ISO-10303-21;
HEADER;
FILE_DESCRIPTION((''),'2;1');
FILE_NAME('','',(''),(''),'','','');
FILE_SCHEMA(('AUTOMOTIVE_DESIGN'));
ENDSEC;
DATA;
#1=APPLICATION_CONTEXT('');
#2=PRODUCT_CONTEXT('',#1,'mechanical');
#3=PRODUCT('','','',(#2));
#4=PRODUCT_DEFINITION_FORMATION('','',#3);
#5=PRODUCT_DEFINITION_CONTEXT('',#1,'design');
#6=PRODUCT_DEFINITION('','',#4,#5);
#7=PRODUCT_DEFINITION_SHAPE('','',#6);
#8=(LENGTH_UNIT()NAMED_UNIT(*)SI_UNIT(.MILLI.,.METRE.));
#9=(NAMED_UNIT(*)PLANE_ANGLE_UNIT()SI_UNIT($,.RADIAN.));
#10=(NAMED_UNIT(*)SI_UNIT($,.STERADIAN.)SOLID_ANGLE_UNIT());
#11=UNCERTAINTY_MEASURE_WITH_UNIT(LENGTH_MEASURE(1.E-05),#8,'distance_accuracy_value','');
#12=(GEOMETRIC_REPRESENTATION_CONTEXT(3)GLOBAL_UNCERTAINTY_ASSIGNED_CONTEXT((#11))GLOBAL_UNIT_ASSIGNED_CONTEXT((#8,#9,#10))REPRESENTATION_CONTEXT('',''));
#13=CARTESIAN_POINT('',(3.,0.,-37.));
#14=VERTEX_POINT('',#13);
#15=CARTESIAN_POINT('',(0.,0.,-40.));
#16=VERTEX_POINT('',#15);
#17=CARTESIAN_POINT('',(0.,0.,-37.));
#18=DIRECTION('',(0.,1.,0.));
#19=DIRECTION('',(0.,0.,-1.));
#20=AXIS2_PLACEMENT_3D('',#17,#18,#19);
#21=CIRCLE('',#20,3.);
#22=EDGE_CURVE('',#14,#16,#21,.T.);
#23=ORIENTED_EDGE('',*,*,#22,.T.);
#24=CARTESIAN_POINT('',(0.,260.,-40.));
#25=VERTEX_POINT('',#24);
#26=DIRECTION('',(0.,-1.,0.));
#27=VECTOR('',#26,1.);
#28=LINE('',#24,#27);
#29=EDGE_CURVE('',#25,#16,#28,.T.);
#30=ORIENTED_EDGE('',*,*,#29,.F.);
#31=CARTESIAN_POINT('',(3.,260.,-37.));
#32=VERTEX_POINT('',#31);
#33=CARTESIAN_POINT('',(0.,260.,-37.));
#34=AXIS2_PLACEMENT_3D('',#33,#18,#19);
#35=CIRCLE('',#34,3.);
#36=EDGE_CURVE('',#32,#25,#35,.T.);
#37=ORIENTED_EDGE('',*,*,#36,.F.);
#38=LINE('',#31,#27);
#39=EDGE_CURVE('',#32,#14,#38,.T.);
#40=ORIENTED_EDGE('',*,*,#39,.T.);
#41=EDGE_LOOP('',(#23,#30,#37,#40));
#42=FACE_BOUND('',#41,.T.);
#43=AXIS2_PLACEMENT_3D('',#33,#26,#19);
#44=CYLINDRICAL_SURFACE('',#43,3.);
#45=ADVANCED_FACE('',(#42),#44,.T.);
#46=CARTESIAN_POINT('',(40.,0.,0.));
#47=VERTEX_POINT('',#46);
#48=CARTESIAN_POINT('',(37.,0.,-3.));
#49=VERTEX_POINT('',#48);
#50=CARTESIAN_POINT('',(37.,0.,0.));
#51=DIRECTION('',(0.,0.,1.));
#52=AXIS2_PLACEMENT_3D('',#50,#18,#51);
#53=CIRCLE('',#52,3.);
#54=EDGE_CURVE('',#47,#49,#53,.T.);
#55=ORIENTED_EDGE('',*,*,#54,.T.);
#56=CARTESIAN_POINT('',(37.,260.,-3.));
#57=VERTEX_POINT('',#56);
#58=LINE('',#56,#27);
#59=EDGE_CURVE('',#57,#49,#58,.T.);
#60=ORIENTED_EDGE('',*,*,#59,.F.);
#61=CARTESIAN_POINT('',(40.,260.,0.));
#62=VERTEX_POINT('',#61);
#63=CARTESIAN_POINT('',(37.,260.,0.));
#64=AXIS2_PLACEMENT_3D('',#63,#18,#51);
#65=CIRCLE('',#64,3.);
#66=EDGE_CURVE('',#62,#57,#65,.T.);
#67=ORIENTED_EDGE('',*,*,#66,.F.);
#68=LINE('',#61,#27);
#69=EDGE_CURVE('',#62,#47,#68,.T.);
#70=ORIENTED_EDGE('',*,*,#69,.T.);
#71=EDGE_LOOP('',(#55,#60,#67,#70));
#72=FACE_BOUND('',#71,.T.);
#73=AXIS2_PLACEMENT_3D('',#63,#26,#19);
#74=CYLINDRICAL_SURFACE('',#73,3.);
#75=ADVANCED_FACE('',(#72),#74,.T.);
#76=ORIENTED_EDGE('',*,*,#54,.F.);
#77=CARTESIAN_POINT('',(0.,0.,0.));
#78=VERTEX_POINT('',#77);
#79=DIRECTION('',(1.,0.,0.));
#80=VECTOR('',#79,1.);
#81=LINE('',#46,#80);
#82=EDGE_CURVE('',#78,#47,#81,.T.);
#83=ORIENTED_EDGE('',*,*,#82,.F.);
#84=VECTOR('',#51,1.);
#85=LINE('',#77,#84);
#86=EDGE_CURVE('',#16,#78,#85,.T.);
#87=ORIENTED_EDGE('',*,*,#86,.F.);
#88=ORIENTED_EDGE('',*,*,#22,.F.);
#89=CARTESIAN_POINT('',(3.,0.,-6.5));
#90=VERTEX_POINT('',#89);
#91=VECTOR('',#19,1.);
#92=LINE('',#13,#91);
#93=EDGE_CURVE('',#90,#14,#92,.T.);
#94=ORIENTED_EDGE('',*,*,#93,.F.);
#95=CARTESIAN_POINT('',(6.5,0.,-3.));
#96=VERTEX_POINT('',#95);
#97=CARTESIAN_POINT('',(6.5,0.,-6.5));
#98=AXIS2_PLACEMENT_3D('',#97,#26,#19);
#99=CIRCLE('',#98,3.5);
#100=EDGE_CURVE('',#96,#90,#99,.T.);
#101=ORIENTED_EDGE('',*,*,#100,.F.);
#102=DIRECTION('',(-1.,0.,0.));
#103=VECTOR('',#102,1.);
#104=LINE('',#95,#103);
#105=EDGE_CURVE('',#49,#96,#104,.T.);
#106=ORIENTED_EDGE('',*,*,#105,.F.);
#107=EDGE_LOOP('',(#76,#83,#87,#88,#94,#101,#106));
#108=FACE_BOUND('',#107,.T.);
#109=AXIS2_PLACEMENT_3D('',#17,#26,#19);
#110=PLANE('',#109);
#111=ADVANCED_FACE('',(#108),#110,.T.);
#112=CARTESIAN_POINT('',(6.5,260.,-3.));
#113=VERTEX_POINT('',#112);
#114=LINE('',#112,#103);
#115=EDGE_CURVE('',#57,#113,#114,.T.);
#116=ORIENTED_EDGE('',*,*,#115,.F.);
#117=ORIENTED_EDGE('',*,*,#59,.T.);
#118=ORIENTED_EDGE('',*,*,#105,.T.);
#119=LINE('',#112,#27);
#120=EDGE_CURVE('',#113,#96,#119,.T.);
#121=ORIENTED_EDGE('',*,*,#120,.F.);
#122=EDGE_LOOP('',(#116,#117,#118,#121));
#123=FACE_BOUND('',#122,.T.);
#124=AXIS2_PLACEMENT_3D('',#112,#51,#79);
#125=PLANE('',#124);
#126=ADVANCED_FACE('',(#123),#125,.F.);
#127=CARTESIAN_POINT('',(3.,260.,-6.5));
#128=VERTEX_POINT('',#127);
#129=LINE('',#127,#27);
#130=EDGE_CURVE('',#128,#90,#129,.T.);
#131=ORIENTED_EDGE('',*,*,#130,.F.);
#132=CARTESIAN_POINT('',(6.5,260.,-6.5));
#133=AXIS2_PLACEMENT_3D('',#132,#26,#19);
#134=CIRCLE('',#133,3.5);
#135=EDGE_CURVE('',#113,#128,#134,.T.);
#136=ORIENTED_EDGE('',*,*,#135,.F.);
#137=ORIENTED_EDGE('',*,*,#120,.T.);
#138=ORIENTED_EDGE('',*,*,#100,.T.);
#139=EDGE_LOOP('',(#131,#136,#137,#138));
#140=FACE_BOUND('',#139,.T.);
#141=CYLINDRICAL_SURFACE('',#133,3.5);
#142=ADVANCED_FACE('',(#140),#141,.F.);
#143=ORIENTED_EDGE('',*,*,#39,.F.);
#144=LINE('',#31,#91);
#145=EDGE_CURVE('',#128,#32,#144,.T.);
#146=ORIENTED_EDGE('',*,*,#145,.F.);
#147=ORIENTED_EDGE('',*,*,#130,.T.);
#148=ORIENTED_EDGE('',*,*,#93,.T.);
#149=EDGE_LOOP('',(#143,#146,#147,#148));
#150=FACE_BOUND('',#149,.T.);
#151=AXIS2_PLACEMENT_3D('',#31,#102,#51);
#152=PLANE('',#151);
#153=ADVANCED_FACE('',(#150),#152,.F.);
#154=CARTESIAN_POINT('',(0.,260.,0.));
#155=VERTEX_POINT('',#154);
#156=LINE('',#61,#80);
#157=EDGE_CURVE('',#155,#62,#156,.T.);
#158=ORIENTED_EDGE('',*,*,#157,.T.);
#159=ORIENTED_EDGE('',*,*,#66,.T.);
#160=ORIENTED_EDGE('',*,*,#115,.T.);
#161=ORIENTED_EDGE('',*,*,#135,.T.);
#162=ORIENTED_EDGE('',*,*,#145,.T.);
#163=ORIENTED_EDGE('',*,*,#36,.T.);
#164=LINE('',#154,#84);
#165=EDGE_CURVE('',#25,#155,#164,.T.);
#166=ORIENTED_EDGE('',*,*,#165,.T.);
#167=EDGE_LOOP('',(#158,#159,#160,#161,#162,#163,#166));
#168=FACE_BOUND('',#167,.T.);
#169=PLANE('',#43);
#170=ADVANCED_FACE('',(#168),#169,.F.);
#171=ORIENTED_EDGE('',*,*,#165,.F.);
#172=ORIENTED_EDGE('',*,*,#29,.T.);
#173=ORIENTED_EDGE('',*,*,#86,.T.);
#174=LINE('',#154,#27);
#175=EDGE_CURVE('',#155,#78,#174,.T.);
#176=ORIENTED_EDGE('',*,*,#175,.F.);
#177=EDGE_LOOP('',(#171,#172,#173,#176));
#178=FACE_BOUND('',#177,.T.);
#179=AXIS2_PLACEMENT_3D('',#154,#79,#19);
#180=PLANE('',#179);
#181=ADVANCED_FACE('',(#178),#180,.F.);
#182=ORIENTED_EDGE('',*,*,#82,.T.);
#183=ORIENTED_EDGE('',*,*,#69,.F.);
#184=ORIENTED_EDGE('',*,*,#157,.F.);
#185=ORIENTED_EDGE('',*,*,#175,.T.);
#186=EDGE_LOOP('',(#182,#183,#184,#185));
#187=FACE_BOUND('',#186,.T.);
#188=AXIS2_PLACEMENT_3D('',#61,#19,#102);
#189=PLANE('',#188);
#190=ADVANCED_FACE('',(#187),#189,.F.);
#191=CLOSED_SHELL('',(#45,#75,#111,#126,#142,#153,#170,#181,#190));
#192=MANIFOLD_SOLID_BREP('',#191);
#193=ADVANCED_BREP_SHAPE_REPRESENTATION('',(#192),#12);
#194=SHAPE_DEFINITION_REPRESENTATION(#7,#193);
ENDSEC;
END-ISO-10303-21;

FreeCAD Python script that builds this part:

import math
import FreeCAD as App
import Part
import Sketcher
Q = App.Units.Quantity

doc = App.newDocument("Part")
body = doc.addObject("PartDesign::Body", "Body")

sketch1 = doc.addObject("Sketcher::SketchObject", "Sketch")
body.addObject(sketch1)
sketch1.AttachmentSupport = (doc.XZ_Plane, [""])
sketch1.MapMode = "FlatFace"
sketch1.addGeometry([
    Part.LineSegment(App.Vector(0, -40, 0), App.Vector(0, 0, 0)),
    Part.LineSegment(App.Vector(0, 0, 0), App.Vector(40, 0, 0)),
    Part.ArcOfCircle(Part.Circle(App.Vector(37, 0, 0), App.Vector(0, 0, 1), 3), math.radians(-90), math.radians(0)),
    Part.LineSegment(App.Vector(37, -3, 0), App.Vector(6.5, -3, 0)),
    Part.ArcOfCircle(Part.Circle(App.Vector(6.5, -6.5, 0), App.Vector(0, 0, 1), 3.5), math.radians(90), math.radians(180)),
    Part.LineSegment(App.Vector(3, -6.5, 0), App.Vector(3, -37, 0)),
    Part.ArcOfCircle(Part.Circle(App.Vector(0, -37, 0), App.Vector(0, 0, 1), 3), math.radians(-90), math.radians(0)),
], False)
sketch1.addConstraint([
    Sketcher.Constraint("Coincident", 0, 2, 1, 1),
    Sketcher.Constraint("Coincident", 1, 2, 2, 2),
    Sketcher.Constraint("Tangent", 2, 1, 3, 1),
    Sketcher.Constraint("Tangent", 3, 2, 4, 1),
    Sketcher.Constraint("Tangent", 4, 2, 5, 1),
    Sketcher.Constraint("Tangent", 5, 2, 6, 2),
    Sketcher.Constraint("Coincident", 6, 1, 0, 1),
    Sketcher.Constraint("Vertical", 0),
    Sketcher.Constraint("Horizontal", 1),
    Sketcher.Constraint("Horizontal", 3),
    Sketcher.Constraint("Vertical", 5),
    Sketcher.Constraint("Coincident", 0, 2, -1, 1),
    Sketcher.Constraint("Equal", 2, 6),
    Sketcher.Constraint("PointOnObject", 2, 3, -1),
    Sketcher.Constraint("PointOnObject", 6, 3, -2),
    Sketcher.Constraint("Equal", 1, 0),
    Sketcher.Constraint("Radius", 2, Q("3 mm")),
    Sketcher.Constraint("Radius", 4, Q("3.5 mm")),
    Sketcher.Constraint("DistanceX", 1, 1, 1, 2, Q("40 mm")),
])
pad1 = doc.addObject("PartDesign::Pad", "Pad")
body.addObject(pad1)
pad1.Profile = sketch1
pad1.Length = 260
pad1.Reversed = True

doc.recompute()
